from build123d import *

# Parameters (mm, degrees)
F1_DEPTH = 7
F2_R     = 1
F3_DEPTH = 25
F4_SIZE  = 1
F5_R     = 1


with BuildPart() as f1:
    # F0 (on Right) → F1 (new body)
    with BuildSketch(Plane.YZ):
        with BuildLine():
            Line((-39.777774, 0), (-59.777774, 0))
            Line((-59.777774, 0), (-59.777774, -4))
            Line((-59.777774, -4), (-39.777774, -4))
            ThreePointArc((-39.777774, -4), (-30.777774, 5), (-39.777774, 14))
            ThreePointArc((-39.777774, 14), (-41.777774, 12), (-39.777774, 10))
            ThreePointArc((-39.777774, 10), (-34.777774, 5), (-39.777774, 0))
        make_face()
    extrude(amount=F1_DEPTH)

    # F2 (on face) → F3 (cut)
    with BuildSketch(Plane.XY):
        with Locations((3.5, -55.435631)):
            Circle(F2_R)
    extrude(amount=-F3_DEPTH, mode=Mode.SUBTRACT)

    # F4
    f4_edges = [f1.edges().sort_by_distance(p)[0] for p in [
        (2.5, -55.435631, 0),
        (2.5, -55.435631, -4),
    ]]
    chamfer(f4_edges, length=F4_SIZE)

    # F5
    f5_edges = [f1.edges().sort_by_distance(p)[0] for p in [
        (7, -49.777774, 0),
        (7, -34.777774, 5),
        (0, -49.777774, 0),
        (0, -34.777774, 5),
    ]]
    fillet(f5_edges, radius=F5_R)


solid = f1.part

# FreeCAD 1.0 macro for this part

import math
import FreeCAD as App
import Part
import Sketcher
from FreeCAD import Vector


def edges_at(feature, points):
    """Names of the edges that pass closest to the given points."""
    edges = feature.Shape.Edges
    near = lambda p: min(range(len(edges)), key=lambda i: edges[i].distToShape(Part.Vertex(*p))[0])
    return sorted({f"Edge{near(p) + 1}" for p in points})

doc = App.newDocument("Part")
body = doc.addObject("PartDesign::Body", "Body")

# Sketch on YZ plane
sketch1 = body.newObject("Sketcher::SketchObject", "Sketch")
sketch1.AttachmentSupport = (doc.getObject("YZ_Plane"), [""])
sketch1.MapMode = "FlatFace"
sketch1.addGeometry([
    Part.LineSegment(Vector(-39.8, 0, 0), Vector(-59.8, 0, 0)),  # 0
    Part.LineSegment(Vector(-59.8, 0, 0), Vector(-59.8, -4, 0)),  # 1
    Part.LineSegment(Vector(-59.8, -4, 0), Vector(-39.8, -4, 0)),  # 2
    Part.ArcOfCircle(Part.Circle(Vector(-39.8, 5, 0), Vector(0, 0, 1), 9), math.radians(-90), math.radians(90)),  # 3
    Part.ArcOfCircle(Part.Circle(Vector(-39.8, 12, 0), Vector(0, 0, 1), 2), math.radians(90), math.radians(270)),  # 4
    Part.ArcOfCircle(Part.Circle(Vector(-39.8, 5, 0), Vector(0, 0, 1), 5), math.radians(-90), math.radians(90)),  # 5
], False)
sketch1.addConstraint([
    Sketcher.Constraint("Coincident", 0, 2, 1, 1),
    Sketcher.Constraint("Coincident", 1, 2, 2, 1),
    Sketcher.Constraint("Tangent", 2, 2, 3, 1),
    Sketcher.Constraint("Tangent", 3, 2, 4, 1),
    Sketcher.Constraint("Tangent", 4, 2, 5, 2),
    Sketcher.Constraint("Tangent", 5, 1, 0, 1),
    Sketcher.Constraint("Horizontal", 0),
    Sketcher.Constraint("Vertical", 1),
    Sketcher.Constraint("Horizontal", 2),
    Sketcher.Constraint("Coincident", 5, 3, 3, 3),
    Sketcher.Constraint("PointOnObject", 0, 2, -1),
    Sketcher.Constraint("Vertical", 3, 3, 4, 3),
    Sketcher.Constraint("Radius", 3, 9.0),
    Sketcher.Constraint("Radius", 4, 2.0),
    Sketcher.Constraint("DistanceX", 0, 2, 0, 1, 20.0),
    Sketcher.Constraint("DistanceX", 3, 3, -1, 1, 39.777774),
])
pad1 = body.newObject("PartDesign::Pad", "Pad")
pad1.Profile = sketch1
pad1.Length = 7

# Sketch on XY plane
sketch2 = body.newObject("Sketcher::SketchObject", "Sketch001")
sketch2.AttachmentSupport = (doc.getObject("XY_Plane"), [""])
sketch2.MapMode = "FlatFace"
sketch2.addGeometry(Part.Circle(Vector(3.5, -55.4, 0), Vector(0, 0, 1), 1), False)
sketch2.addConstraint([
    Sketcher.Constraint("Diameter", 0, 2.0),
    Sketcher.Constraint("DistanceX", -1, 1, 0, 3, 3.5),
    Sketcher.Constraint("DistanceY", 0, 3, -1, 1, 55.435631),
])
pocket1 = body.newObject("PartDesign::Pocket", "Pocket")
pocket1.Profile = sketch2
pocket1.Length = 25
doc.recompute()

chamfer = body.newObject("PartDesign::Chamfer", "Chamfer")
chamfer.Base = (pocket1, edges_at(pocket1, [(2.5, -55.436, 0), (2.5, -55.436, -4)]))
chamfer.Size = 1
doc.recompute()

fillet = body.newObject("PartDesign::Fillet", "Fillet")
fillet.Base = (chamfer, edges_at(chamfer, [
    (7, -49.778, 0),
    (7, -34.778, 5),
    (0, -49.778, 0),
    (0, -34.778, 5),
]))
fillet.Radius = 1

doc.recompute()
